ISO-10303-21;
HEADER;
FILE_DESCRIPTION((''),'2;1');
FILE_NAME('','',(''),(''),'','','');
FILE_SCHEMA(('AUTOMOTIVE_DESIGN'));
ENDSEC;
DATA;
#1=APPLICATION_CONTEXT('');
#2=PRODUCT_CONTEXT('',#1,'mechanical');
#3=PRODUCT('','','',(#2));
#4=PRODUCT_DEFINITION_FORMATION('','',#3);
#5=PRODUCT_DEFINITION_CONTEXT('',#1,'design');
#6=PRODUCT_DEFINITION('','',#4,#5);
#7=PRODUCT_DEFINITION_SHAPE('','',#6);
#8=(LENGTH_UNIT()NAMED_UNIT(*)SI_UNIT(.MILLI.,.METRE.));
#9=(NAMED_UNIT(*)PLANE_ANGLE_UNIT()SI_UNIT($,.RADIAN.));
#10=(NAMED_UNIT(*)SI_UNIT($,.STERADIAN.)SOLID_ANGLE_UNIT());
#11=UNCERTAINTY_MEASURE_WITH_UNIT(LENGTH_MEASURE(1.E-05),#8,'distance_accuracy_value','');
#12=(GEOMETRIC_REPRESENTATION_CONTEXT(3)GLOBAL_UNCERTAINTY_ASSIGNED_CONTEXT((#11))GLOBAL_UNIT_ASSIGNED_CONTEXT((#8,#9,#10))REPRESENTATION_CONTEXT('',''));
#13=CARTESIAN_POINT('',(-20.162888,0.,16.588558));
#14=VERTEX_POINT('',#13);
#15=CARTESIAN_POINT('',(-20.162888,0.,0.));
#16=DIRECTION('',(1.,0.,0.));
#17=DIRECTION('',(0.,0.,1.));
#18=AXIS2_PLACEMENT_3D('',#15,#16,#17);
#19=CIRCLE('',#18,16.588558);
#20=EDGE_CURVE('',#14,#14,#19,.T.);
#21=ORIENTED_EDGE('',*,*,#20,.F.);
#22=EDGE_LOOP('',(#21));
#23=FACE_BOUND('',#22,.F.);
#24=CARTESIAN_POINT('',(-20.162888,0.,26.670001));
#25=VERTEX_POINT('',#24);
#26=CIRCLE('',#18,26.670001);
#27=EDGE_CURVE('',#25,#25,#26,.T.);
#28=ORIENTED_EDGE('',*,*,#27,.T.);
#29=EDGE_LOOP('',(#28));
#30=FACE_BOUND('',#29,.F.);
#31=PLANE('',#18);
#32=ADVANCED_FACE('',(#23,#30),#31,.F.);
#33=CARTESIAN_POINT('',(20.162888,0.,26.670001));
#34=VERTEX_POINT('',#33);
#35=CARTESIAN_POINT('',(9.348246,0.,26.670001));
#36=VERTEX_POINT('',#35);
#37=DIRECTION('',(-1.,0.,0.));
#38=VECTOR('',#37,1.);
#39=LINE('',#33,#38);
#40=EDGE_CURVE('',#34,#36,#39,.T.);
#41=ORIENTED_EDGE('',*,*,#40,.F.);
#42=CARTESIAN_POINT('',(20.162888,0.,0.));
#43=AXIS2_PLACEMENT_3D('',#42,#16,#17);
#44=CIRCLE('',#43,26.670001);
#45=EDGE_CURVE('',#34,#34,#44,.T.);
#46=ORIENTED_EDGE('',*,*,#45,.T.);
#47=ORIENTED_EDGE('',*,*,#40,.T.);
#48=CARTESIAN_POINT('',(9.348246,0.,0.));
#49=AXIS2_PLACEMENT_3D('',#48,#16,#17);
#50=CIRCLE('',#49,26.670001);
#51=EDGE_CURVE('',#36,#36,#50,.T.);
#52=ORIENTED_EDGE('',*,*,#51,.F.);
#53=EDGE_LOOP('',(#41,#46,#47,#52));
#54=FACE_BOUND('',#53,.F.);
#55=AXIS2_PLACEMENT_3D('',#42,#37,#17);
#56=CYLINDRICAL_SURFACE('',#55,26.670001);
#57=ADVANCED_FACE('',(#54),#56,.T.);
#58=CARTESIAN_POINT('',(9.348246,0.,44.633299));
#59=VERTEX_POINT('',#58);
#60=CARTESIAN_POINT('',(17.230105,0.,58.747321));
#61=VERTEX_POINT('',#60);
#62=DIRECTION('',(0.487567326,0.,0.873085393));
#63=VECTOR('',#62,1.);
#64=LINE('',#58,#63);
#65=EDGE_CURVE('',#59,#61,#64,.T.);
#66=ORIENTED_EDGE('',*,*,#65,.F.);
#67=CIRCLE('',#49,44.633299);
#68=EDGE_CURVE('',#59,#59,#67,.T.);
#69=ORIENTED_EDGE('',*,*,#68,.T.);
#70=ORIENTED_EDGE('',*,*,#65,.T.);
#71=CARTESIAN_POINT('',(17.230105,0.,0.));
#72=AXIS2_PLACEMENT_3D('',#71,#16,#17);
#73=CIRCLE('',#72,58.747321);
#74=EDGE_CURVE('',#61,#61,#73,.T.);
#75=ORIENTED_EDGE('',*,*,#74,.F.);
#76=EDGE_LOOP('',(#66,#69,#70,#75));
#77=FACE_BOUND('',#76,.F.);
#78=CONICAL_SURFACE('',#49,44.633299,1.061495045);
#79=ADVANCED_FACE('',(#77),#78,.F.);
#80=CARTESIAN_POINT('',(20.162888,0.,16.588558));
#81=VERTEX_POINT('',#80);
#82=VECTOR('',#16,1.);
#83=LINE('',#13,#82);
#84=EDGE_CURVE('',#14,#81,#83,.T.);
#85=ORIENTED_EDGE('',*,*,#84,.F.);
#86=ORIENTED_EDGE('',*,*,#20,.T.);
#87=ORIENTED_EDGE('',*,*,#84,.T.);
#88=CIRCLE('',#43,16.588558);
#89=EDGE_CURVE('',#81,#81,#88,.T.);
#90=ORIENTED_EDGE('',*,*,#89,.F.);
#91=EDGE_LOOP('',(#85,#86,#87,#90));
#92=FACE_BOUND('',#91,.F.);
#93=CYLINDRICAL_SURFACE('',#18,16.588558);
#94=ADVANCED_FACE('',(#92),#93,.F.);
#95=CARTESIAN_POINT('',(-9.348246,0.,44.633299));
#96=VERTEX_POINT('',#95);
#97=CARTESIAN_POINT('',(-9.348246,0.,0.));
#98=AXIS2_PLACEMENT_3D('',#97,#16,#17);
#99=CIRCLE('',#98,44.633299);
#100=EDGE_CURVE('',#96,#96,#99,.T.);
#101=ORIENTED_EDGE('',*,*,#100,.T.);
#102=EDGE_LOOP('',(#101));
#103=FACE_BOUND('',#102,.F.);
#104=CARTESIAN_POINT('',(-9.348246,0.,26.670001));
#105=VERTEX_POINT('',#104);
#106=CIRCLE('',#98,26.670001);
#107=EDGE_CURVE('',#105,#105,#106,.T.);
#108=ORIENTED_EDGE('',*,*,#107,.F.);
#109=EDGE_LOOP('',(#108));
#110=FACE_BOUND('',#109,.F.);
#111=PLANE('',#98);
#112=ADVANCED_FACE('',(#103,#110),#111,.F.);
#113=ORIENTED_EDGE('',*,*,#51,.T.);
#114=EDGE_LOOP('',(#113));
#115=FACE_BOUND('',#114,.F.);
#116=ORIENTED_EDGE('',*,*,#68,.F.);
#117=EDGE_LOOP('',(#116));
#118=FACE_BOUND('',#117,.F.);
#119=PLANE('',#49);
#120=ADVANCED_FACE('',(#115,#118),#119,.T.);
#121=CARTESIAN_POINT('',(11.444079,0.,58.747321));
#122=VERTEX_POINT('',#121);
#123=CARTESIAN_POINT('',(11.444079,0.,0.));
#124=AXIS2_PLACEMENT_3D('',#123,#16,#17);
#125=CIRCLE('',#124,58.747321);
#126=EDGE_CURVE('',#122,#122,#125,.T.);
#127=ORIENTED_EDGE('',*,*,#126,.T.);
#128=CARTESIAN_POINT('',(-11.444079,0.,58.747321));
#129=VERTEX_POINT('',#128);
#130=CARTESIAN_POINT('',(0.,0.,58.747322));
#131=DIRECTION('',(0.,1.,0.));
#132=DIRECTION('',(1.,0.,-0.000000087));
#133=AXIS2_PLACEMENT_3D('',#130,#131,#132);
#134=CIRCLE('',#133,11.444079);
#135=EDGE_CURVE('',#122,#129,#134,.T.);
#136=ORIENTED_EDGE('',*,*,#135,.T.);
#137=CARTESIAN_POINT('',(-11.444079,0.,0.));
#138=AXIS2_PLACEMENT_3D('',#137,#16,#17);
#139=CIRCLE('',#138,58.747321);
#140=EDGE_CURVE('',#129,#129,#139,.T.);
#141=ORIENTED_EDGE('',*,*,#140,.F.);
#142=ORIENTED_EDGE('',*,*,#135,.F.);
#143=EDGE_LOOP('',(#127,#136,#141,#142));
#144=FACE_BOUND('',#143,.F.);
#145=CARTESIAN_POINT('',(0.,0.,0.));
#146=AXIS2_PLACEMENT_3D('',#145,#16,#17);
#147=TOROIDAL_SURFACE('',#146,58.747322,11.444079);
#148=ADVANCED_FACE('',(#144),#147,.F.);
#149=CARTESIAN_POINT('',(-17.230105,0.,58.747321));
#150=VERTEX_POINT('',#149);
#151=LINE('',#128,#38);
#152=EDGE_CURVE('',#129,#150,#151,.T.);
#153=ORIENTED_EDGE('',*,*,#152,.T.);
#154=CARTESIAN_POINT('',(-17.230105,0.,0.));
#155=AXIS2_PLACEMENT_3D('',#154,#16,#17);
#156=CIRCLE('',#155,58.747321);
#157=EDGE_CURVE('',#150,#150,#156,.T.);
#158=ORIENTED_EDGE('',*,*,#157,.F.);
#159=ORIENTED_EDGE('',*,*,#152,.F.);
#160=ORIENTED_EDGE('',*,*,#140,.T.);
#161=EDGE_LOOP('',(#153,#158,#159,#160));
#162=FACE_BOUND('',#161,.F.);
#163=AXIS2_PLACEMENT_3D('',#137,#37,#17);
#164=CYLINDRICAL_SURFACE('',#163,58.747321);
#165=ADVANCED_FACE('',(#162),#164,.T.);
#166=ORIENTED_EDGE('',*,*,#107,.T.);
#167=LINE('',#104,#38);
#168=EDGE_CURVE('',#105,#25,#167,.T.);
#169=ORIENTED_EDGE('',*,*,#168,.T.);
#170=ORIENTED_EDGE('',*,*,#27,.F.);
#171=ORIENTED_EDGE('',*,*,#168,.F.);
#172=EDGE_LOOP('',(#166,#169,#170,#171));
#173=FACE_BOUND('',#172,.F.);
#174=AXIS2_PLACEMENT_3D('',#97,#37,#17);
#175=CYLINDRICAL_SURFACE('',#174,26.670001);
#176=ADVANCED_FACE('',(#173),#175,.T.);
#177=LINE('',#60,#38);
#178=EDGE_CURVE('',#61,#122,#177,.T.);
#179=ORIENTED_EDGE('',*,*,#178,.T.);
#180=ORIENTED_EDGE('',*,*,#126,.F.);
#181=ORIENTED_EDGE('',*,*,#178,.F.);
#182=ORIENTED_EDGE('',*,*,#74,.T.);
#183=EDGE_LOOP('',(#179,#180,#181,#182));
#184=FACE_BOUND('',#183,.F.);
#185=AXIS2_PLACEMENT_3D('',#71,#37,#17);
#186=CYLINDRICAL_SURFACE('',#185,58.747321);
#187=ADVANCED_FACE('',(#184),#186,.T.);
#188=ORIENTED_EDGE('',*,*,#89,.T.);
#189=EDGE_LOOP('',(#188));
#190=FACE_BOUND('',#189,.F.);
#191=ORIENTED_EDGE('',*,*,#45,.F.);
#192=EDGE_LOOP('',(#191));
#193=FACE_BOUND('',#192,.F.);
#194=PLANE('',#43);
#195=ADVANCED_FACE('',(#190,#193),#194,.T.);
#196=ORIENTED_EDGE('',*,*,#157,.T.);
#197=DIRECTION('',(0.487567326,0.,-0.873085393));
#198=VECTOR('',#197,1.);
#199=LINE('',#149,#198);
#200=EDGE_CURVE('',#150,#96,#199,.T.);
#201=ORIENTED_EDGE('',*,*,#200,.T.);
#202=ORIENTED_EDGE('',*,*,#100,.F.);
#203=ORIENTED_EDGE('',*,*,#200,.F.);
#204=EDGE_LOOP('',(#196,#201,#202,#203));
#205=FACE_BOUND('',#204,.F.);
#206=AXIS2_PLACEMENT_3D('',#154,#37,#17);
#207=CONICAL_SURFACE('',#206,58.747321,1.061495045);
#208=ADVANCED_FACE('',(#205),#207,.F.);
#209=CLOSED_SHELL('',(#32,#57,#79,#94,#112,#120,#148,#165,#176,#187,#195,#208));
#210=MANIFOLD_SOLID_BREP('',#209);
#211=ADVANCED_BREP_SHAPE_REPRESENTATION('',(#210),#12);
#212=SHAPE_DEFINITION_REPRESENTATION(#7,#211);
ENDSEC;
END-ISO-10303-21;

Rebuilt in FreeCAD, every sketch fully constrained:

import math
import FreeCAD as App
import Part
import Sketcher

doc = App.newDocument("Part")
body = doc.addObject("PartDesign::Body", "Body")

# Sketch on XZ plane
sketch1 = doc.addObject("Sketcher::SketchObject", "Sketch")
body.addObject(sketch1)
sketch1.AttachmentSupport = (doc.XZ_Plane, [""])
sketch1.MapMode = "FlatFace"
sketch1.addGeometry(Part.LineSegment(App.Vector(-20.162888, 16.588558, 0), App.Vector(20.162888, 16.588558, 0)), False)
sketch1.addGeometry(Part.LineSegment(App.Vector(20.162888, 16.588558, 0), App.Vector(20.162888, 26.670001, 0)), False)
sketch1.addGeometry(Part.LineSegment(App.Vector(20.162888, 26.670001, 0), App.Vector(9.348246, 26.670001, 0)), False)
sketch1.addGeometry(Part.LineSegment(App.Vector(9.348246, 26.670001, 0), App.Vector(9.348246, 44.633299, 0)), False)
sketch1.addGeometry(Part.LineSegment(App.Vector(9.348246, 44.633299, 0), App.Vector(17.230105, 58.747321, 0)), False)
sketch1.addGeometry(Part.LineSegment(App.Vector(17.230105, 58.747321, 0), App.Vector(11.444079, 58.747321, 0)), False)
sketch1.addGeometry(Part.ArcOfCircle(Part.Circle(App.Vector(0, 58.747322, 0), App.Vector(0, 0, 1), 11.444079), math.radians(-179.999995), math.radians(-0.000005)), False)
sketch1.addGeometry(Part.LineSegment(App.Vector(-11.444079, 58.747321, 0), App.Vector(-17.230105, 58.747321, 0)), False)
sketch1.addGeometry(Part.LineSegment(App.Vector(-17.230105, 58.747321, 0), App.Vector(-9.348246, 44.633299, 0)), False)
sketch1.addGeometry(Part.LineSegment(App.Vector(-9.348246, 44.633299, 0), App.Vector(-9.348246, 26.670001, 0)), False)
sketch1.addGeometry(Part.LineSegment(App.Vector(-9.348246, 26.670001, 0), App.Vector(-20.162888, 26.670001, 0)), False)
sketch1.addGeometry(Part.LineSegment(App.Vector(-20.162888, 26.670001, 0), App.Vector(-20.162888, 16.588558, 0)), False)
sketch1.addConstraint(Sketcher.Constraint("Coincident", 0, 2, 1, 1))
sketch1.addConstraint(Sketcher.Constraint("Coincident", 1, 2, 2, 1))
sketch1.addConstraint(Sketcher.Constraint("Coincident", 2, 2, 3, 1))
sketch1.addConstraint(Sketcher.Constraint("Coincident", 3, 2, 4, 1))
sketch1.addConstraint(Sketcher.Constraint("Coincident", 4, 2, 5, 1))
sketch1.addConstraint(Sketcher.Constraint("Coincident", 5, 2, 6, 2))
sketch1.addConstraint(Sketcher.Constraint("Coincident", 6, 1, 7, 1))
sketch1.addConstraint(Sketcher.Constraint("Coincident", 7, 2, 8, 1))
sketch1.addConstraint(Sketcher.Constraint("Coincident", 8, 2, 9, 1))
sketch1.addConstraint(Sketcher.Constraint("Coincident", 9, 2, 10, 1))
sketch1.addConstraint(Sketcher.Constraint("Coincident", 10, 2, 11, 1))
sketch1.addConstraint(Sketcher.Constraint("Coincident", 11, 2, 0, 1))
sketch1.addConstraint(Sketcher.Constraint("Horizontal", 0))
sketch1.addConstraint(Sketcher.Constraint("Vertical", 1))
sketch1.addConstraint(Sketcher.Constraint("Horizontal", 2))
sketch1.addConstraint(Sketcher.Constraint("Vertical", 3))
sketch1.addConstraint(Sketcher.Constraint("Horizontal", 5))
sketch1.addConstraint(Sketcher.Constraint("Horizontal", 7))
sketch1.addConstraint(Sketcher.Constraint("Vertical", 9))
sketch1.addConstraint(Sketcher.Constraint("Horizontal", 10))
sketch1.addConstraint(Sketcher.Constraint("Vertical", 11))
sketch1.addConstraint(Sketcher.Constraint("Symmetric", 5, 2, 6, 1, -2))
sketch1.addConstraint(Sketcher.Constraint("Symmetric", 3, 2, 8, 2, -2))
sketch1.addConstraint(Sketcher.Constraint("Symmetric", 1, 2, 10, 2, -2))
sketch1.addConstraint(Sketcher.Constraint("Horizontal", 6, 3, 4, 2))
sketch1.addConstraint(Sketcher.Constraint("Equal", 5, 7))
sketch1.addConstraint(Sketcher.Constraint("DistanceY", -1, 1, 1, 2, 26.670001))
sketch1.addConstraint(Sketcher.Constraint("Radius", 6, 11.444079))
sketch1.addConstraint(Sketcher.Constraint("DistanceY", 3, 1, 3, 2, 17.963298))
sketch1.addConstraint(Sketcher.Constraint("DistanceX", 2, 2, 2, 1, 10.814642))
sketch1.addConstraint(Sketcher.Constraint("DistanceX", 0, 1, 0, 2, 40.325776))
sketch1.addConstraint(Sketcher.Constraint("DistanceX", 5, 2, 5, 1, 5.786026))
sketch1.addConstraint(Sketcher.Constraint("DistanceY", 1, 1, 1, 2, 10.081443))
sketch1.addConstraint(Sketcher.Constraint("DistanceY", -1, 1, 6, 3, 58.747322))
revolution = doc.addObject("PartDesign::Revolution", "Revolution")
body.addObject(revolution)
revolution.Profile = sketch1
revolution.ReferenceAxis = (sketch1, ["H_Axis"])
revolution.Angle = 360

doc.recompute()
